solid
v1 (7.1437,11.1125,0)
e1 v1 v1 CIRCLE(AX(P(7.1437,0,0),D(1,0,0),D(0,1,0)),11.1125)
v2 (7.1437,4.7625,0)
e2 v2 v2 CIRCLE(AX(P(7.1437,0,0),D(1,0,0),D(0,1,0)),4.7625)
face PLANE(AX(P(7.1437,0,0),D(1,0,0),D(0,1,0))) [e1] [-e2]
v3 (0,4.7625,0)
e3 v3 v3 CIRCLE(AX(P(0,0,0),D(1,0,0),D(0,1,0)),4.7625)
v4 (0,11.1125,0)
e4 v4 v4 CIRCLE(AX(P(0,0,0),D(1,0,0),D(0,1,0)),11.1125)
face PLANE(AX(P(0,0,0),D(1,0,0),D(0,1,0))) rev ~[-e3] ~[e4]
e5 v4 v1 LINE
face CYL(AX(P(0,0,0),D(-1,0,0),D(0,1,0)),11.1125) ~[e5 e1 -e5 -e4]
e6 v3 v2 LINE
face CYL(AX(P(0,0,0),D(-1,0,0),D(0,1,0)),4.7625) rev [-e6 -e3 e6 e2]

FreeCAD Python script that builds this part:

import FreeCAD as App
import Part
import Sketcher

V = App.Vector
Q = App.Units.Quantity

doc = App.newDocument("Part")
body = doc.addObject("PartDesign::Body", "Body")

sketch1 = body.newObject("Sketcher::SketchObject", "Sketch")
sketch1.AttachmentSupport = (doc.getObject("YZ_Plane"), [""])
sketch1.MapMode = "FlatFace"
sketch1.addGeometry(Part.Circle(V(0, 0, 0), V(0, 0, 1), 11.1), False)
sketch1.addGeometry(Part.Circle(V(0, 0, 0), V(0, 0, 1), 4.8), False)
sketch1.addConstraint(Sketcher.Constraint("Coincident", 0, 3, -1, 1))
sketch1.addConstraint(Sketcher.Constraint("Coincident", 1, 3, -1, 1))
sketch1.addConstraint(Sketcher.Constraint("Diameter", 0, Q("0.875 in")))
sketch1.addConstraint(Sketcher.Constraint("Diameter", 1, Q("0.375 in")))
pad1 = body.newObject("PartDesign::Pad", "Pad")
pad1.Profile = sketch1
pad1.Length = Q("0.281248 in")

doc.recompute()
